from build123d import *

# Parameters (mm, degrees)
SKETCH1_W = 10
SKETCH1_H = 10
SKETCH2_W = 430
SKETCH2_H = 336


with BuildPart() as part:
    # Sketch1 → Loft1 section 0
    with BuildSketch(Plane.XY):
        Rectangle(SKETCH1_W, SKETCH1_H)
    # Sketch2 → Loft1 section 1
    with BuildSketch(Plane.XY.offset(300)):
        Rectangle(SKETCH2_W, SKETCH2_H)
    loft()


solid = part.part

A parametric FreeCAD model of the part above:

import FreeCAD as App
import Part
import Sketcher

V = App.Vector
Q = App.Units.Quantity


def add_polygon(sketch, points):
    """Adds a closed chain of lines whose ends are joined by coincident constraints."""
    first, n = sketch.GeometryCount, len(points)
    for a, b in zip(points, points[1:] + points[:1]):
        sketch.addGeometry(Part.LineSegment(App.Vector(*a, 0), App.Vector(*b, 0)), False)
    for i in range(n):
        sketch.addConstraint(Sketcher.Constraint("Coincident", first + i, 2, first + (i + 1) % n, 1))

doc = App.newDocument("Part")
params = doc.addObject("Spreadsheet::Sheet", "Params")
for row, (alias, value) in enumerate([
    ("sketch1_width", "10 mm"),
    ("sketch2_width", "430 mm"),
    ("sketch2_height", "336 mm"),
], start=1):
    params.set(f"A{row}", alias)
    params.set(f"B{row}", "=" + value)
    params.setAlias(f"B{row}", alias)

body = doc.addObject("PartDesign::Body", "Body")

# Sketch on XY plane
sketch1 = body.newObject("Sketcher::SketchObject", "Sketch")
sketch1.AttachmentSupport = (doc.getObject("XY_Plane"), [""])
sketch1.MapMode = "FlatFace"
add_polygon(sketch1, [(-5, 5), (-5, -5), (5, -5), (5, 5)])  # lines 0-3
sketch1.addConstraint([
    Sketcher.Constraint("Vertical", 0),
    Sketcher.Constraint("Horizontal", 1),
    Sketcher.Constraint("Vertical", 2),
    Sketcher.Constraint("Horizontal", 3),
    Sketcher.Constraint("Symmetric", 0, 2, 2, 2, -1, 1),
    Sketcher.Constraint("Equal", 3, 0),
    Sketcher.Constraint("DistanceX", 1, 1, 1, 2, Q("10 mm")),
])
sketch1.setExpression("Constraints[10]", "Params.sketch1_width")

# Sketch on XY plane
sketch2 = body.newObject("Sketcher::SketchObject", "Sketch001")
sketch2.AttachmentSupport = (doc.getObject("XY_Plane"), [""])
sketch2.MapMode = "FlatFace"
sketch2.AttachmentOffset = App.Placement(V(0, 0, 300), App.Rotation())
add_polygon(sketch2, [(-215, 168), (-215, -168), (215, -168), (215, 168)])  # lines 0-3
sketch2.addConstraint([
    Sketcher.Constraint("Vertical", 0),
    Sketcher.Constraint("Horizontal", 1),
    Sketcher.Constraint("Vertical", 2),
    Sketcher.Constraint("Horizontal", 3),
    Sketcher.Constraint("Symmetric", 0, 2, 2, 2, -1, 1),
    Sketcher.Constraint("DistanceX", 1, 1, 1, 2, Q("430 mm")),
    Sketcher.Constraint("DistanceY", 0, 2, 0, 1, Q("336 mm")),
])
sketch2.setExpression("Constraints[9]", "Params.sketch2_width")
sketch2.setExpression("Constraints[10]", "Params.sketch2_height")

additiveloft = body.newObject("PartDesign::AdditiveLoft", "AdditiveLoft")
additiveloft.Profile = sketch1
additiveloft.Sections = [sketch2]

doc.recompute()
